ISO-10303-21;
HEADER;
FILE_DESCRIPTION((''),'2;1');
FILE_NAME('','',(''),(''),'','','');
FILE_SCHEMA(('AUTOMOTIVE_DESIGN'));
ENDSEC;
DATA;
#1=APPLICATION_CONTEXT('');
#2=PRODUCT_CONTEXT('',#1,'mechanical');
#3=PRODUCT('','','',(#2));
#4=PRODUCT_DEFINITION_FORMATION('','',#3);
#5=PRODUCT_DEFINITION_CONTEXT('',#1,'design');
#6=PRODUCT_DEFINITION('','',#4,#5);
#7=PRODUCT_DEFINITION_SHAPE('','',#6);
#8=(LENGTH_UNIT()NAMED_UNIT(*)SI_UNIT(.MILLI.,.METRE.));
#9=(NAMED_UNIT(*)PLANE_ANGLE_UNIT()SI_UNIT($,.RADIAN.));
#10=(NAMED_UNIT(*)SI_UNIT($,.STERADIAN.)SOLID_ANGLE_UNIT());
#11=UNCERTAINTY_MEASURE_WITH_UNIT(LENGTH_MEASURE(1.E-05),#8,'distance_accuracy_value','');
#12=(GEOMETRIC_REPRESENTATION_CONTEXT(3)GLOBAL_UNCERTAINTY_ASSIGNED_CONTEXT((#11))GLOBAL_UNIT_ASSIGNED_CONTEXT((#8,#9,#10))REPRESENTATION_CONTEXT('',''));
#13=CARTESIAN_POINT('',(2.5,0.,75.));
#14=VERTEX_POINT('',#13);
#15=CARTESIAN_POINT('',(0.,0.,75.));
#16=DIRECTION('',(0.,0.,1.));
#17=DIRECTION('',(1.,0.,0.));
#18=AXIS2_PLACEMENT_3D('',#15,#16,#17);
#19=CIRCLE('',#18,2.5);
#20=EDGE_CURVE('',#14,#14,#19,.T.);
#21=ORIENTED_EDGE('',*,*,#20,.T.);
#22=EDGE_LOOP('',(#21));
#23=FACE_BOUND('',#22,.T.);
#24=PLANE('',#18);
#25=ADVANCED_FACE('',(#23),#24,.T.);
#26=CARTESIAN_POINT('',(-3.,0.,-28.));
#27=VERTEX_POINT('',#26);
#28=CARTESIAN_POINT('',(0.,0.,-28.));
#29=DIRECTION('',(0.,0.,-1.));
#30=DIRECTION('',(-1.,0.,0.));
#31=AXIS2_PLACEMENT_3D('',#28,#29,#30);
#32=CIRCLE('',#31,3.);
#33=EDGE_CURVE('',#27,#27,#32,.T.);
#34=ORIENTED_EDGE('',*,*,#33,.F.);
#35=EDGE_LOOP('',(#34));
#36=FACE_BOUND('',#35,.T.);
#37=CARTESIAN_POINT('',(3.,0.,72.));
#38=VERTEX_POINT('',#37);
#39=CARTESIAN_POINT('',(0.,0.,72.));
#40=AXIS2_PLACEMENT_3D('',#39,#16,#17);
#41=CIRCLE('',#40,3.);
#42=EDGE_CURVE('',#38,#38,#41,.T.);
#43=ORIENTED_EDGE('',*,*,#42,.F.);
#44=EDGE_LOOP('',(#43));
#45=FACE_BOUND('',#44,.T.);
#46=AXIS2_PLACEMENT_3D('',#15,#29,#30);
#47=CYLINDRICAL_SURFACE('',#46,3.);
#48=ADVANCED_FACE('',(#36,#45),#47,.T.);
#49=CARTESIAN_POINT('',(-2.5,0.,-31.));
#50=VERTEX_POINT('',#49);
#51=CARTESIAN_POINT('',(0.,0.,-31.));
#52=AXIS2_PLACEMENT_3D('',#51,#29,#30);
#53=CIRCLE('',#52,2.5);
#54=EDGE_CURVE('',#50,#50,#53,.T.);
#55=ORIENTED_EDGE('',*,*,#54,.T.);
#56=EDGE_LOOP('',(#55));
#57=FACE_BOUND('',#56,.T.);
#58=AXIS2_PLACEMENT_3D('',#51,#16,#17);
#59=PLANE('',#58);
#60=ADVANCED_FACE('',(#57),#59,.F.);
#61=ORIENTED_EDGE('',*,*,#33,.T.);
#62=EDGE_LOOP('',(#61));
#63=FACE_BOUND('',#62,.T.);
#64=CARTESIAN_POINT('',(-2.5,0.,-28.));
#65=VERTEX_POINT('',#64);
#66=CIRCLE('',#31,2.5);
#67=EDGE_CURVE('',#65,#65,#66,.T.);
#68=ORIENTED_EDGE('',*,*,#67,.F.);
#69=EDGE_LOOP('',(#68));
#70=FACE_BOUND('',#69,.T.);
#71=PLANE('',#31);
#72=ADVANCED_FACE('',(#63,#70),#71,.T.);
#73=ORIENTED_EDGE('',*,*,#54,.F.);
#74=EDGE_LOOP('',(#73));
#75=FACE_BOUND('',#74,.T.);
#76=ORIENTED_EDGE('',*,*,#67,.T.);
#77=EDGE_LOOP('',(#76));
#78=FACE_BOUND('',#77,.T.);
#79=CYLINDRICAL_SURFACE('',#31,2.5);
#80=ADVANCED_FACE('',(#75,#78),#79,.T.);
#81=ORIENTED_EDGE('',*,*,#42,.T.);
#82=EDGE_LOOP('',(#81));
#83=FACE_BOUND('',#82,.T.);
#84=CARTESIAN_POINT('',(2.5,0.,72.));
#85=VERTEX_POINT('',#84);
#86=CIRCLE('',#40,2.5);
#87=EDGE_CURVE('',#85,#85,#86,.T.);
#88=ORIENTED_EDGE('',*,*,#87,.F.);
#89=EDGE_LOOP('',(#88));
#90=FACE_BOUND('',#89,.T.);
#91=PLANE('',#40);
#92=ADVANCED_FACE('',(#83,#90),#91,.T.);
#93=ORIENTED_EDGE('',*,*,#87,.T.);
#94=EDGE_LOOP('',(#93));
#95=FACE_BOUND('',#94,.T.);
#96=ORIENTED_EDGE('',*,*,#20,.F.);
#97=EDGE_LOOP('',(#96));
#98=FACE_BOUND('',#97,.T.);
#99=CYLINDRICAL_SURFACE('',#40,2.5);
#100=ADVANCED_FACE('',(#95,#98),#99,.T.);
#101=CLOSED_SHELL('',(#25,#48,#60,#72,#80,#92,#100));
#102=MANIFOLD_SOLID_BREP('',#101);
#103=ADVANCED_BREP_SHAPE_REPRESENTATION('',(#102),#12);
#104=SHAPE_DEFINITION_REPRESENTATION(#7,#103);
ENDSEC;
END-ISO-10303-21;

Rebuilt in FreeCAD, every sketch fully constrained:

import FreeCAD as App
import Part
import Sketcher
from FreeCAD import Vector


def edges_at(feature, points):
    """Names of the edges that pass closest to the given points."""
    edges = feature.Shape.Edges
    near = lambda p: min(range(len(edges)), key=lambda i: edges[i].distToShape(Part.Vertex(*p))[0])
    return sorted({f"Edge{near(p) + 1}" for p in points})

doc = App.newDocument("Part")
body = doc.addObject("PartDesign::Body", "Body")

# Sketch on XY plane
sketch1 = body.newObject("Sketcher::SketchObject", "Sketch")
sketch1.AttachmentSupport = (doc.getObject("XY_Plane"), [""])
sketch1.MapMode = "FlatFace"
sketch1.addGeometry(Part.Circle(Vector(0, 0, 0), Vector(0, 0, 1), 3), False)
sketch1.addConstraint(Sketcher.Constraint("Coincident", 0, 3, -1, 1))
sketch1.addConstraint(Sketcher.Constraint("Diameter", 0, 6.0))
pad1 = body.newObject("PartDesign::Pad", "Pad")
pad1.Profile = sketch1
pad1.Type = "TwoLengths"
pad1.Length = 75
pad1.Length2 = 75
doc.recompute()

chamfer = body.newObject("PartDesign::Chamfer", "Chamfer")
chamfer.Base = (pad1, edges_at(pad1, [(-3, 0, -75), (-3, 0, 75)]))
chamfer.Size = 0.12

# Sketch on XY plane
sketch2 = body.newObject("Sketcher::SketchObject", "Sketch001")
sketch2.AttachmentSupport = (doc.getObject("XY_Plane"), [""])
sketch2.MapMode = "FlatFace"
sketch2.AttachmentOffset = App.Placement(Vector(0, 0, -75), App.Rotation())
sketch2.addGeometry(Part.Circle(Vector(0, 0, 0), Vector(0, 0, 1), 3), False)
sketch2.addConstraint(Sketcher.Constraint("Coincident", 0, 3, -1, 1))
sketch2.addConstraint(Sketcher.Constraint("Diameter", 0, 6.0))
pocket1 = body.newObject("PartDesign::Pocket", "Pocket")
pocket1.Profile = sketch2
pocket1.Length = 44
pocket1.Reversed = True

# Sketch on XY plane
sketch3 = body.newObject("Sketcher::SketchObject", "Sketch002")
sketch3.AttachmentSupport = (doc.getObject("XY_Plane"), [""])
sketch3.MapMode = "FlatFace"
sketch3.AttachmentOffset = App.Placement(Vector(0, 0, -31), App.Rotation())
sketch3.addGeometry(Part.LineSegment(Vector(14.6, 14.6, 0), Vector(14.6, -14.6, 0)), False)
sketch3.addGeometry(Part.LineSegment(Vector(14.6, -14.6, 0), Vector(-14.6, -14.6, 0)), False)
sketch3.addGeometry(Part.LineSegment(Vector(-14.6, -14.6, 0), Vector(-14.6, 14.6, 0)), False)
sketch3.addGeometry(Part.LineSegment(Vector(-14.6, 14.6, 0), Vector(14.6, 14.6, 0)), False)
sketch3.addGeometry(Part.Circle(Vector(0, 0, 0), Vector(0, 0, 1), 2.5), False)
sketch3.addConstraint(Sketcher.Constraint("Coincident", 0, 2, 1, 1))
sketch3.addConstraint(Sketcher.Constraint("Coincident", 1, 2, 2, 1))
sketch3.addConstraint(Sketcher.Constraint("Coincident", 2, 2, 3, 1))
sketch3.addConstraint(Sketcher.Constraint("Coincident", 3, 2, 0, 1))
sketch3.addConstraint(Sketcher.Constraint("Vertical", 0))
sketch3.addConstraint(Sketcher.Constraint("Horizontal", 1))
sketch3.addConstraint(Sketcher.Constraint("Vertical", 2))
sketch3.addConstraint(Sketcher.Constraint("Horizontal", 3))
sketch3.addConstraint(Sketcher.Constraint("Coincident", 4, 3, -1, 1))
sketch3.addConstraint(Sketcher.Constraint("Symmetric", 0, 2, 2, 2, -1, 1))
sketch3.addConstraint(Sketcher.Constraint("Equal", 3, 0))
sketch3.addConstraint(Sketcher.Constraint("Diameter", 4, 5.0))
sketch3.addConstraint(Sketcher.Constraint("DistanceX", 1, 2, 1, 1, 29.268))
pocket2 = body.newObject("PartDesign::Pocket", "Pocket001")
pocket2.Profile = sketch3
pocket2.Length = 3
pocket2.Reversed = True

# Sketch on XY plane
sketch4 = body.newObject("Sketcher::SketchObject", "Sketch003")
sketch4.AttachmentSupport = (doc.getObject("XY_Plane"), [""])
sketch4.MapMode = "FlatFace"
sketch4.AttachmentOffset = App.Placement(Vector(0, 0, 75), App.Rotation())
sketch4.addGeometry(Part.LineSegment(Vector(-14.6, 14.6, 0), Vector(-14.6, -14.6, 0)), False)
sketch4.addGeometry(Part.LineSegment(Vector(-14.6, -14.6, 0), Vector(14.6, -14.6, 0)), False)
sketch4.addGeometry(Part.LineSegment(Vector(14.6, -14.6, 0), Vector(14.6, 14.6, 0)), False)
sketch4.addGeometry(Part.LineSegment(Vector(14.6, 14.6, 0), Vector(-14.6, 14.6, 0)), False)
sketch4.addGeometry(Part.Circle(Vector(0, 0, 0), Vector(0, 0, 1), 2.5), False)
sketch4.addConstraint(Sketcher.Constraint("Coincident", 0, 2, 1, 1))
sketch4.addConstraint(Sketcher.Constraint("Coincident", 1, 2, 2, 1))
sketch4.addConstraint(Sketcher.Constraint("Coincident", 2, 2, 3, 1))
sketch4.addConstraint(Sketcher.Constraint("Coincident", 3, 2, 0, 1))
sketch4.addConstraint(Sketcher.Constraint("Vertical", 0))
sketch4.addConstraint(Sketcher.Constraint("Horizontal", 1))
sketch4.addConstraint(Sketcher.Constraint("Vertical", 2))
sketch4.addConstraint(Sketcher.Constraint("Horizontal", 3))
sketch4.addConstraint(Sketcher.Constraint("Coincident", 4, 3, -1, 1))
sketch4.addConstraint(Sketcher.Constraint("Symmetric", 0, 2, 2, 2, -1, 1))
sketch4.addConstraint(Sketcher.Constraint("Equal", 3, 0))
sketch4.addConstraint(Sketcher.Constraint("Diameter", 4, 5.0))
sketch4.addConstraint(Sketcher.Constraint("DistanceX", 1, 1, 1, 2, 29.268))
pocket3 = body.newObject("PartDesign::Pocket", "Pocket002")
pocket3.Profile = sketch4
pocket3.Length = 3

doc.recompute()
